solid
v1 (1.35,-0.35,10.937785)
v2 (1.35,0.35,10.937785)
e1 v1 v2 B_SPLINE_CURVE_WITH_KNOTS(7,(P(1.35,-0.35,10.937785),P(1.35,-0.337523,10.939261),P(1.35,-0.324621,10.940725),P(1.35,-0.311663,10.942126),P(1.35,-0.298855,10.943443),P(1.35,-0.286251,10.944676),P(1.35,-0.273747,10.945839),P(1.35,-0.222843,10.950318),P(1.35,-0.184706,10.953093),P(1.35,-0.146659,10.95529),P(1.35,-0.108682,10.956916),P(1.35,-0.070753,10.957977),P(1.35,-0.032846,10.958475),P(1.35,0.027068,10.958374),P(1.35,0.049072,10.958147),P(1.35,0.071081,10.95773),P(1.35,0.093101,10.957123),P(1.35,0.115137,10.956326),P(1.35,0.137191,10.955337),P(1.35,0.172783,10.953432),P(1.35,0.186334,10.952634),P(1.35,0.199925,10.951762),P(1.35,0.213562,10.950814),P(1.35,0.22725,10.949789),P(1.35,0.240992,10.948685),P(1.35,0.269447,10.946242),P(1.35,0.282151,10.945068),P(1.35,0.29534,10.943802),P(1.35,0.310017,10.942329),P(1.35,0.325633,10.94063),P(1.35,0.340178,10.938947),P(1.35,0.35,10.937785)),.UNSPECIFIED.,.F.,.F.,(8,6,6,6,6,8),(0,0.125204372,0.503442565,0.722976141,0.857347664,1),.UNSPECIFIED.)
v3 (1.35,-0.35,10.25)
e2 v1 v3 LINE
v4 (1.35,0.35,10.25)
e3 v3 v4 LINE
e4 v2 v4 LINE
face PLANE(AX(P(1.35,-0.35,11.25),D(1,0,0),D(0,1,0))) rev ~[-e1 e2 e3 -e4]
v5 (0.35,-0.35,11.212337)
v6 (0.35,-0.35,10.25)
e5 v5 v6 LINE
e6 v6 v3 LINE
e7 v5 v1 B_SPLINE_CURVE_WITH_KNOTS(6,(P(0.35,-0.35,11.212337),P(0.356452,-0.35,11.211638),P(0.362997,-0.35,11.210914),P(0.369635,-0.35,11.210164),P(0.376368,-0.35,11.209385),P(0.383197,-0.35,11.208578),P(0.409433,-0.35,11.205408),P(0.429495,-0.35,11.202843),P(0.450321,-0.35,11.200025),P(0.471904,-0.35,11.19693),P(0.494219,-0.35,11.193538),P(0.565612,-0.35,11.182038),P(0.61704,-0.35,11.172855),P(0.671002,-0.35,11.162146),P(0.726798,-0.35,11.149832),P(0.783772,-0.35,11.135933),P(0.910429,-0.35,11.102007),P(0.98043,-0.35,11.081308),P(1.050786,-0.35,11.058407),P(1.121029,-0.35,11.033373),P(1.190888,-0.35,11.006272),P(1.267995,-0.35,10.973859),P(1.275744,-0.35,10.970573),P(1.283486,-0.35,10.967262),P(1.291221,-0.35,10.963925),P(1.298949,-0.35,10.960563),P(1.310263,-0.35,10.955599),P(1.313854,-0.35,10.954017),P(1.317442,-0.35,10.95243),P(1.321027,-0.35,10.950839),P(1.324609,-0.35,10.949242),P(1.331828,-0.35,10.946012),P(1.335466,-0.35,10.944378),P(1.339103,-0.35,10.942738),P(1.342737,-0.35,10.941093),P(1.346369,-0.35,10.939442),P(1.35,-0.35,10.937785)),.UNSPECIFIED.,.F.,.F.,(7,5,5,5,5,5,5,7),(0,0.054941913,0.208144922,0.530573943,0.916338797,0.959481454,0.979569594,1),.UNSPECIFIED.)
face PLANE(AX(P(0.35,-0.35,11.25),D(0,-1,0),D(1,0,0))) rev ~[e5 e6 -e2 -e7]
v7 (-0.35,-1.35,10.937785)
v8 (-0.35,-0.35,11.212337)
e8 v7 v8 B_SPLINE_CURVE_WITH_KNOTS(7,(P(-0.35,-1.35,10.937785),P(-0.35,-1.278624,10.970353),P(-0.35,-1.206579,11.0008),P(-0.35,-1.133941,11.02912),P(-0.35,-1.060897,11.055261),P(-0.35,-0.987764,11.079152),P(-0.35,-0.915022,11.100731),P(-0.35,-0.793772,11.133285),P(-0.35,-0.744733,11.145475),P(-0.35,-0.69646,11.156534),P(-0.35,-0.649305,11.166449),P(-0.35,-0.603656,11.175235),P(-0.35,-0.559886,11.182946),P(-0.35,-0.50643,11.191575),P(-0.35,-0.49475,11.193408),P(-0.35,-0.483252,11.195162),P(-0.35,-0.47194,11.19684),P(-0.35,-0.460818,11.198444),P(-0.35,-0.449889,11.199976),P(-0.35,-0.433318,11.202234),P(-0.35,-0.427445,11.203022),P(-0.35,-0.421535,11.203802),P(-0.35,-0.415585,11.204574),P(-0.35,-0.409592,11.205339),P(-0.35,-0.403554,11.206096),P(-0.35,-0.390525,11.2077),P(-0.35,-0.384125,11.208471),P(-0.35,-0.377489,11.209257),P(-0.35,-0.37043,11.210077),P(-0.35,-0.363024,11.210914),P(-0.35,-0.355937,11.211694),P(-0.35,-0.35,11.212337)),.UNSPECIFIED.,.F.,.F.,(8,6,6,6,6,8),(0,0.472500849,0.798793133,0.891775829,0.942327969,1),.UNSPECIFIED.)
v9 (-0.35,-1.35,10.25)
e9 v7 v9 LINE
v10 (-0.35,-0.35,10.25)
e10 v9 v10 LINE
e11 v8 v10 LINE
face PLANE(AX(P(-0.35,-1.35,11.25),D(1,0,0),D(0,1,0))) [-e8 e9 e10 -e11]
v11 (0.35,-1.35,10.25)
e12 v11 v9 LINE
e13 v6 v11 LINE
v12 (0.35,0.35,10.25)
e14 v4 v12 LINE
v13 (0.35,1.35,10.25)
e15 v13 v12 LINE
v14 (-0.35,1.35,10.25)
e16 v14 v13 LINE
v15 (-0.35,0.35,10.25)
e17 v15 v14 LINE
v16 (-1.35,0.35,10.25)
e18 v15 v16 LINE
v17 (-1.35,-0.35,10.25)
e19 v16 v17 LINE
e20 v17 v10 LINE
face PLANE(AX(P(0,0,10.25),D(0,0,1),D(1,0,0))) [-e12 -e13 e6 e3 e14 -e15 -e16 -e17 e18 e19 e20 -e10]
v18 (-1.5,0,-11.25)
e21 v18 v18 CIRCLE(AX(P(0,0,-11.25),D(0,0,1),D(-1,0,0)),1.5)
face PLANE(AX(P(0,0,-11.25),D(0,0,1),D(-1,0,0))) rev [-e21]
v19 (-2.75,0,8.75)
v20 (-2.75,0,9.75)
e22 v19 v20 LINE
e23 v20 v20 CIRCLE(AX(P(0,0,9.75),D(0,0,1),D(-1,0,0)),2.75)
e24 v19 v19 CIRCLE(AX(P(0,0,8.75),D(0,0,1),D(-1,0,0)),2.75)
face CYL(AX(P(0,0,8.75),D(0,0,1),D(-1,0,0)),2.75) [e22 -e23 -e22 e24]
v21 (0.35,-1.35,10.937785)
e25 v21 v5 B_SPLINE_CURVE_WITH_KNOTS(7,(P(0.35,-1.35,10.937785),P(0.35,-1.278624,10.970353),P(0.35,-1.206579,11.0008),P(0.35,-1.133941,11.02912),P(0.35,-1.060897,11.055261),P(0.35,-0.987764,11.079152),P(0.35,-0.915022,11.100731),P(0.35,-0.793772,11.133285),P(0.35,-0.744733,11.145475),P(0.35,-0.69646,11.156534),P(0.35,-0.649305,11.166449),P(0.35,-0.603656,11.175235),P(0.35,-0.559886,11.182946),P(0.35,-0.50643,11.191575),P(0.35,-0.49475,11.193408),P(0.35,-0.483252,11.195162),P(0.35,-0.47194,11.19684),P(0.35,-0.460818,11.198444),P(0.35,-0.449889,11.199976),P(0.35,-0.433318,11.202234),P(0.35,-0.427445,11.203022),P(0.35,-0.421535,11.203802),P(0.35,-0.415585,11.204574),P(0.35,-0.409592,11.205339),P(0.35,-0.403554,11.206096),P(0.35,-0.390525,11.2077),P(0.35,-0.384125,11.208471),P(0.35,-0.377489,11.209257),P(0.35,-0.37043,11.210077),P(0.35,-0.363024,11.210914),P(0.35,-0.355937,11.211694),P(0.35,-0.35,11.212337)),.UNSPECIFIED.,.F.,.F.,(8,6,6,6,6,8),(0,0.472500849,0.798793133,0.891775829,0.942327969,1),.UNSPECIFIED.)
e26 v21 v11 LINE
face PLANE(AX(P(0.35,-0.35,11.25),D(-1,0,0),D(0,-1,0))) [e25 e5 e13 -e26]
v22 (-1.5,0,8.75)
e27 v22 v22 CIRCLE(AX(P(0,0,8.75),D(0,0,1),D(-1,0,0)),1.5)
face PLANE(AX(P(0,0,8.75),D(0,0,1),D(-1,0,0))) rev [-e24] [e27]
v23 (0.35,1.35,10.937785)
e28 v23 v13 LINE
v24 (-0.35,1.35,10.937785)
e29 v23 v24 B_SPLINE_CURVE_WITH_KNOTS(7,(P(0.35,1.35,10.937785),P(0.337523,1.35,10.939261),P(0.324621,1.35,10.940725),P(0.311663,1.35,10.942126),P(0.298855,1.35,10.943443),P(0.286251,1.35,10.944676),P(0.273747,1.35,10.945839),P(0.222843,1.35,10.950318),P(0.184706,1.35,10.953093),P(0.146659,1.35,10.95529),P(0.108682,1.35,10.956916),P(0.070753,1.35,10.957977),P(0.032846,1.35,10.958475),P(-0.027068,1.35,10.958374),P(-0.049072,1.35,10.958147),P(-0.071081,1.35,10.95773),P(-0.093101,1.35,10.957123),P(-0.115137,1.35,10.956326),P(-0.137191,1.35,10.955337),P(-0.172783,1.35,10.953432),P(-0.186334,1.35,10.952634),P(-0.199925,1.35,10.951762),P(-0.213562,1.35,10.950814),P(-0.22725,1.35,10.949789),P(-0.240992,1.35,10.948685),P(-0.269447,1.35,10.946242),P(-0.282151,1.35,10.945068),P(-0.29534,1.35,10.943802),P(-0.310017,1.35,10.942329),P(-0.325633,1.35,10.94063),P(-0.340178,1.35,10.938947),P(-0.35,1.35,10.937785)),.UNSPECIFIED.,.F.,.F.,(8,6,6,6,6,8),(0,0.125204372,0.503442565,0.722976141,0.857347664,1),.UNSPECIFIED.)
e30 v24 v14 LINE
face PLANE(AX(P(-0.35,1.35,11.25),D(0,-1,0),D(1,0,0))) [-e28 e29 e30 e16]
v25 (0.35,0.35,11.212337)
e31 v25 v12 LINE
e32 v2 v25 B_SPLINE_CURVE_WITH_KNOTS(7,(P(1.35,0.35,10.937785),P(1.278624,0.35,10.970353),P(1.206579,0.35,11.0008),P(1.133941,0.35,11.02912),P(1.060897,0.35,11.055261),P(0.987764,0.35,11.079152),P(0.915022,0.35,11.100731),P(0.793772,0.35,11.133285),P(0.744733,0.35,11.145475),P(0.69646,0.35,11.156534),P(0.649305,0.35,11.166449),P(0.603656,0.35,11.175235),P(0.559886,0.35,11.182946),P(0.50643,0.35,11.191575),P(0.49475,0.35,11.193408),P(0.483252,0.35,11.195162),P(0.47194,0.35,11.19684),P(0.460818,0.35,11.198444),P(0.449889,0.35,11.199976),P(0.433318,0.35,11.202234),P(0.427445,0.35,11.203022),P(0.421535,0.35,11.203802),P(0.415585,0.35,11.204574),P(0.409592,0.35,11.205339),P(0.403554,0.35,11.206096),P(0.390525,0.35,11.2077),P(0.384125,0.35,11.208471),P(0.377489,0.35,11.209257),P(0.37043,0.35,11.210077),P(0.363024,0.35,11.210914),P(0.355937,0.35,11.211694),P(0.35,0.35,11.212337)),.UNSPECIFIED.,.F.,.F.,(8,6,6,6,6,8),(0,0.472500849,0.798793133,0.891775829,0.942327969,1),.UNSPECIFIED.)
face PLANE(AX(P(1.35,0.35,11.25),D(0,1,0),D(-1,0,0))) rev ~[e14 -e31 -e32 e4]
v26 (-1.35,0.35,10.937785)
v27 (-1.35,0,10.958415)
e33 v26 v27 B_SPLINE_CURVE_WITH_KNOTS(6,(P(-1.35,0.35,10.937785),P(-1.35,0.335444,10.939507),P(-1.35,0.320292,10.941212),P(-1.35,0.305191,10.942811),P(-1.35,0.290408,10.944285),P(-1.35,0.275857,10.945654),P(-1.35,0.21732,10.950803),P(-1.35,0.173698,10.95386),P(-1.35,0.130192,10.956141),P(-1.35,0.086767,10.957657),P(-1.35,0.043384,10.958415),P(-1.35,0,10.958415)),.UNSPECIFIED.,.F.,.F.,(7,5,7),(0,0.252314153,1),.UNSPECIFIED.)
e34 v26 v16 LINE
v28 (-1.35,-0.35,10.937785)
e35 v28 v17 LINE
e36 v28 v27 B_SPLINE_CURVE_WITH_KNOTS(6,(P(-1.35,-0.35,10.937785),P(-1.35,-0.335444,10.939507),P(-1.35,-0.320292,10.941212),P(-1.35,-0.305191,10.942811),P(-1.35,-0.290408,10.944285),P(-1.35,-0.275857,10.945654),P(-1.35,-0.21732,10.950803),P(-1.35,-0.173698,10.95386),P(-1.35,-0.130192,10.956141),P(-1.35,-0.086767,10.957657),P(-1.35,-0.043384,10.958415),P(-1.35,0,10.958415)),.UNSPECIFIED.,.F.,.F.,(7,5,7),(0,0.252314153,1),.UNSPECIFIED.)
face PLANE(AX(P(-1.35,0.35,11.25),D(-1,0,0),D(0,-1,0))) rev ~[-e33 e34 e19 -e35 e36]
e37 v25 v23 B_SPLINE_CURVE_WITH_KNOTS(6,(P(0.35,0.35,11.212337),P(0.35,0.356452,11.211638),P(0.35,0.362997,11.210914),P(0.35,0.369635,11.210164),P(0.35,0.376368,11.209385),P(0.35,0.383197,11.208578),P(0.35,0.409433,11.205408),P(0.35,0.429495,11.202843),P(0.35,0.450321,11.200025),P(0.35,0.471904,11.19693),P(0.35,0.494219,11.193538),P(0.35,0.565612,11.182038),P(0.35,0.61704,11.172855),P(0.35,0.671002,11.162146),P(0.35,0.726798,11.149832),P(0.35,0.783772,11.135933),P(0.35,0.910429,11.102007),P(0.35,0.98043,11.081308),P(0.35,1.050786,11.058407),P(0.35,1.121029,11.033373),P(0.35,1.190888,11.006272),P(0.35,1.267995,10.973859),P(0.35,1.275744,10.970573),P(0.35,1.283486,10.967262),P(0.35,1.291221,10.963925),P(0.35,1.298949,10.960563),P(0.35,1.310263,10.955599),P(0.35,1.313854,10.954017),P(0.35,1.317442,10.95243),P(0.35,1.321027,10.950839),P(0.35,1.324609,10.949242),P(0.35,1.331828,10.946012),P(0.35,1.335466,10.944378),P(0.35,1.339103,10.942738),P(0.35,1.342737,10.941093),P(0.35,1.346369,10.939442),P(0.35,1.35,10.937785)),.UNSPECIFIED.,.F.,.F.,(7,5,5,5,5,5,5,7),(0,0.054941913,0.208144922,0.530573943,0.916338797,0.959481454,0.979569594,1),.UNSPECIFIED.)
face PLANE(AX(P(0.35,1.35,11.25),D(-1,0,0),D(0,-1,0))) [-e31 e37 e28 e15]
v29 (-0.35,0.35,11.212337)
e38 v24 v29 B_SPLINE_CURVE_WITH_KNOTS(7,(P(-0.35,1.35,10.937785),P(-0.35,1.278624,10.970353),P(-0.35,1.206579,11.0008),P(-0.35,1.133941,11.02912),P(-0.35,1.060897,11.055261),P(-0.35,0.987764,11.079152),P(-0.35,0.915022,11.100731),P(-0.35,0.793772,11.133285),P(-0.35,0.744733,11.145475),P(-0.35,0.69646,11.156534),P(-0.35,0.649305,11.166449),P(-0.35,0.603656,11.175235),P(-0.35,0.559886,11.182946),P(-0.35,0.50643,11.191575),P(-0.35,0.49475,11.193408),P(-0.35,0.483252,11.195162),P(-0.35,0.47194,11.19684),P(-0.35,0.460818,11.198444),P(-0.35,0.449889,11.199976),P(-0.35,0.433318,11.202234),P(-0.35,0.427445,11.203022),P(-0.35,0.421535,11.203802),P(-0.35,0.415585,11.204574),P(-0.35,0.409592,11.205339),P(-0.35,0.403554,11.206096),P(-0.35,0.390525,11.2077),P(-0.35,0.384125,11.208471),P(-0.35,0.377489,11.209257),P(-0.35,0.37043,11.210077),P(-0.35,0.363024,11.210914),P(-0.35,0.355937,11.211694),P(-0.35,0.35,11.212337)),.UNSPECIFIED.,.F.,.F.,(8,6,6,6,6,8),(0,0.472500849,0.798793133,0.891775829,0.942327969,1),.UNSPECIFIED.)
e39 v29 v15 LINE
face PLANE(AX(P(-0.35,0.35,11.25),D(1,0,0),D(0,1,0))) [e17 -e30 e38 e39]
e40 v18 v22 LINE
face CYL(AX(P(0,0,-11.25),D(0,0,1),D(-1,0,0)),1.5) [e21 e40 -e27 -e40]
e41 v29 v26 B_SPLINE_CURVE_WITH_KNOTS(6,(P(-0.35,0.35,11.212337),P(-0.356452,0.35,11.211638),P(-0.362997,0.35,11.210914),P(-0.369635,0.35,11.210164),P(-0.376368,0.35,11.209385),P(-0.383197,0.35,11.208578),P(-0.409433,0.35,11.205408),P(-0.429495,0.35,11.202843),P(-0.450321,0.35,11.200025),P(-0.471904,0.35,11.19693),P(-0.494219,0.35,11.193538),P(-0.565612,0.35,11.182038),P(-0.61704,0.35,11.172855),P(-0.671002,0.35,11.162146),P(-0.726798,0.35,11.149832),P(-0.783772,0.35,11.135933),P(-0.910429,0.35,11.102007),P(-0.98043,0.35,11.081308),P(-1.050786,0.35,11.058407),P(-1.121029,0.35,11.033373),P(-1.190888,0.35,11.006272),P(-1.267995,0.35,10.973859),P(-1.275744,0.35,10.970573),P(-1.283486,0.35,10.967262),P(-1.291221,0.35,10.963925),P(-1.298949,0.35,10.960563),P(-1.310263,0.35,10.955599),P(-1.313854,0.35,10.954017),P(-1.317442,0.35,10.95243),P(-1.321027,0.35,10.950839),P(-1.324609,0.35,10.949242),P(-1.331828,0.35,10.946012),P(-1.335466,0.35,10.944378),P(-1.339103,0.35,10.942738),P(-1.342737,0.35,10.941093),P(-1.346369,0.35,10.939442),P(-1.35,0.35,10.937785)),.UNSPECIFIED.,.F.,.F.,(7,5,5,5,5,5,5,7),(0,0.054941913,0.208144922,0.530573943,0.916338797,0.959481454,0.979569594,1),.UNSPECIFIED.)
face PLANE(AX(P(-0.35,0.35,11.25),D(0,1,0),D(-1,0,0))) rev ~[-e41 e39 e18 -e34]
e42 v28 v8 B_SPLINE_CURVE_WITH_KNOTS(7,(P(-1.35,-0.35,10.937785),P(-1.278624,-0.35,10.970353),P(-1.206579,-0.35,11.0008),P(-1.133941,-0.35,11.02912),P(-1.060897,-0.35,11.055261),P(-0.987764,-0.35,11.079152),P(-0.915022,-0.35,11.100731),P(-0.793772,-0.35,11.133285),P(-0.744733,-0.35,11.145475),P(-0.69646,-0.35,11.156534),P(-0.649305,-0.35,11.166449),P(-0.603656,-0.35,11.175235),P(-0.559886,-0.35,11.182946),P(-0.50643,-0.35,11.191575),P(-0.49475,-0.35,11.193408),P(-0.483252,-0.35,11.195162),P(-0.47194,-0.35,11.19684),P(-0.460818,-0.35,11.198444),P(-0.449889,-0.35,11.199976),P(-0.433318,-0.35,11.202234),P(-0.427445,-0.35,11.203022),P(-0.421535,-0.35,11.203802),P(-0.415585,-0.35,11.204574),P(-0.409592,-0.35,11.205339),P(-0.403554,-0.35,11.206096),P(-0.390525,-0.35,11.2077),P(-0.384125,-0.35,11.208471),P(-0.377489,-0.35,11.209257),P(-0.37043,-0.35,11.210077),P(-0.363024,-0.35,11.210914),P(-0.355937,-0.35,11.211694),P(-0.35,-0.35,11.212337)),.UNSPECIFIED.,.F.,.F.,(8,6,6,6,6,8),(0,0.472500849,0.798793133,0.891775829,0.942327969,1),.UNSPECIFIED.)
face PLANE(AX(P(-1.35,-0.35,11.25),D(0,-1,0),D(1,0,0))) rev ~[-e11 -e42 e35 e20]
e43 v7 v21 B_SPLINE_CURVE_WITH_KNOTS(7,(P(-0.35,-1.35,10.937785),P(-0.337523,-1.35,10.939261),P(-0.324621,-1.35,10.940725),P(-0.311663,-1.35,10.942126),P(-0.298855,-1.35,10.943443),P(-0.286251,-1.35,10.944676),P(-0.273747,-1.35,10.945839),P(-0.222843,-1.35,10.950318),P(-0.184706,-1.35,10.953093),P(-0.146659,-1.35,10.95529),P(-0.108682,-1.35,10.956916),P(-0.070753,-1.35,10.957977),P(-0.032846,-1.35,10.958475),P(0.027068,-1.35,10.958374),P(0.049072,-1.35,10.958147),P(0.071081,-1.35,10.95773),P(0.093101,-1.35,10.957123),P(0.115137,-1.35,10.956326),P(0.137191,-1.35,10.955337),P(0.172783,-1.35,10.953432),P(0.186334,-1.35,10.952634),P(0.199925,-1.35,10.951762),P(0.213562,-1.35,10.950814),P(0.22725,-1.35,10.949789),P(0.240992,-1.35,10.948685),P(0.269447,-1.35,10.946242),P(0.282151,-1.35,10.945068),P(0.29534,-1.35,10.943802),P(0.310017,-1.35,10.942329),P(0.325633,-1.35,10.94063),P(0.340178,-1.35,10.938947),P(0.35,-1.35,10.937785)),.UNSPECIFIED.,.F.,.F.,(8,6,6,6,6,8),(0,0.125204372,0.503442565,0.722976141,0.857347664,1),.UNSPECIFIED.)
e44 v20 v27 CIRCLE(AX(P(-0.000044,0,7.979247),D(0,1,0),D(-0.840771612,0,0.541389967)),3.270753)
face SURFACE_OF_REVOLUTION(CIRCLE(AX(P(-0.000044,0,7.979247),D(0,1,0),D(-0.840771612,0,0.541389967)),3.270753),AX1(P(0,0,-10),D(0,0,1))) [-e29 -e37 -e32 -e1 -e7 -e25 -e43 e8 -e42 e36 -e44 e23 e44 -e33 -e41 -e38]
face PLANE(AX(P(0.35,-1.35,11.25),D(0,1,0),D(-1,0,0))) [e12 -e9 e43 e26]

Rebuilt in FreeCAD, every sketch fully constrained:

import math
import FreeCAD as App
import Part
import Sketcher

doc = App.newDocument("Part")
body = doc.addObject("PartDesign::Body", "Body")

# Sketch on XZ plane
sketch1 = body.newObject("Sketcher::SketchObject", "Sketch")
sketch1.AttachmentSupport = (doc.getObject("XZ_Plane"), [""])
sketch1.MapMode = "FlatFace"
sketch1.addGeometry(Part.LineSegment(App.Vector(0, -11.2, 0), App.Vector(-1.5, -11.2, 0)), False)
sketch1.addGeometry(Part.LineSegment(App.Vector(-1.5, -11.2, 0), App.Vector(-1.5, 8.8, 0)), False)
sketch1.addGeometry(Part.LineSegment(App.Vector(-1.5, 8.8, 0), App.Vector(-2.8, 8.8, 0)), False)
sketch1.addGeometry(Part.LineSegment(App.Vector(-2.8, 8.8, 0), App.Vector(-2.8, 9.8, 0)), False)
sketch1.addGeometry(Part.ArcOfCircle(Part.Circle(App.Vector(0, 8, 0), App.Vector(0, 0, 1), 3.3), math.radians(90), math.radians(147)), False)
sketch1.addGeometry(Part.LineSegment(App.Vector(0, 11.2, 0), App.Vector(0, -11.2, 0)), False)
sketch1.addConstraint(Sketcher.Constraint("Coincident", 0, 2, 1, 1))
sketch1.addConstraint(Sketcher.Constraint("Coincident", 1, 2, 2, 1))
sketch1.addConstraint(Sketcher.Constraint("Coincident", 2, 2, 3, 1))
sketch1.addConstraint(Sketcher.Constraint("Coincident", 3, 2, 4, 2))
sketch1.addConstraint(Sketcher.Constraint("Coincident", 4, 1, 5, 1))
sketch1.addConstraint(Sketcher.Constraint("Coincident", 5, 2, 0, 1))
sketch1.addConstraint(Sketcher.Constraint("Horizontal", 0))
sketch1.addConstraint(Sketcher.Constraint("Vertical", 1))
sketch1.addConstraint(Sketcher.Constraint("Horizontal", 2))
sketch1.addConstraint(Sketcher.Constraint("Vertical", 3))
sketch1.addConstraint(Sketcher.Constraint("Vertical", 5))
sketch1.addConstraint(Sketcher.Constraint("Symmetric", 4, 1, 5, 2, -1, 1))
sketch1.addConstraint(Sketcher.Constraint("PointOnObject", 4, 3, -2))
sketch1.addConstraint(Sketcher.Constraint("DistanceY", 1, 1, 1, 2, 20.0))
sketch1.addConstraint(Sketcher.Constraint("DistanceY", 3, 1, 3, 2, 1.0))
sketch1.addConstraint(Sketcher.Constraint("DistanceY", 1, 2, 4, 1, 2.5))
sketch1.addConstraint(Sketcher.Constraint("DistanceX", 0, 2, 0, 1, 1.5))
sketch1.addConstraint(Sketcher.Constraint("DistanceX", 2, 2, 2, 1, 1.25))
revolution = body.newObject("PartDesign::Revolution", "Revolution")
revolution.Profile = sketch1
revolution.ReferenceAxis = (sketch1, ["V_Axis"])
revolution.Angle = 360

# Sketch on XY plane
sketch2 = body.newObject("Sketcher::SketchObject", "Sketch001")
sketch2.AttachmentSupport = (doc.getObject("XY_Plane"), [""])
sketch2.MapMode = "FlatFace"
sketch2.AttachmentOffset = App.Placement(App.Vector(0, 0, 11.25), App.Rotation())
sketch2.addGeometry(Part.LineSegment(App.Vector(-1.4, 0.3, 0), App.Vector(-1.4, -0.3, 0)), False)
sketch2.addGeometry(Part.LineSegment(App.Vector(-1.4, -0.3, 0), App.Vector(-0.3, -0.3, 0)), False)
sketch2.addGeometry(Part.LineSegment(App.Vector(-0.3, -0.3, 0), App.Vector(-0.3, -1.4, 0)), False)
sketch2.addGeometry(Part.LineSegment(App.Vector(-0.3, -1.4, 0), App.Vector(0.3, -1.4, 0)), False)
sketch2.addGeometry(Part.LineSegment(App.Vector(0.3, -1.4, 0), App.Vector(0.3, -0.3, 0)), False)
sketch2.addGeometry(Part.LineSegment(App.Vector(0.3, -0.3, 0), App.Vector(1.4, -0.3, 0)), False)
sketch2.addGeometry(Part.LineSegment(App.Vector(1.4, -0.3, 0), App.Vector(1.4, 0.3, 0)), False)
sketch2.addGeometry(Part.LineSegment(App.Vector(1.4, 0.3, 0), App.Vector(0.3, 0.3, 0)), False)
sketch2.addGeometry(Part.LineSegment(App.Vector(0.3, 0.3, 0), App.Vector(0.3, 1.4, 0)), False)
sketch2.addGeometry(Part.LineSegment(App.Vector(0.3, 1.4, 0), App.Vector(-0.3, 1.4, 0)), False)
sketch2.addGeometry(Part.LineSegment(App.Vector(-0.3, 1.4, 0), App.Vector(-0.3, 0.3, 0)), False)
sketch2.addGeometry(Part.LineSegment(App.Vector(-0.3, 0.3, 0), App.Vector(-1.4, 0.3, 0)), False)
sketch2.addConstraint(Sketcher.Constraint("Coincident", 0, 2, 1, 1))
sketch2.addConstraint(Sketcher.Constraint("Coincident", 1, 2, 2, 1))
sketch2.addConstraint(Sketcher.Constraint("Coincident", 2, 2, 3, 1))
sketch2.addConstraint(Sketcher.Constraint("Coincident", 3, 2, 4, 1))
sketch2.addConstraint(Sketcher.Constraint("Coincident", 4, 2, 5, 1))
sketch2.addConstraint(Sketcher.Constraint("Coincident", 5, 2, 6, 1))
sketch2.addConstraint(Sketcher.Constraint("Coincident", 6, 2, 7, 1))
sketch2.addConstraint(Sketcher.Constraint("Coincident", 7, 2, 8, 1))
sketch2.addConstraint(Sketcher.Constraint("Coincident", 8, 2, 9, 1))
sketch2.addConstraint(Sketcher.Constraint("Coincident", 9, 2, 10, 1))
sketch2.addConstraint(Sketcher.Constraint("Coincident", 10, 2, 11, 1))
sketch2.addConstraint(Sketcher.Constraint("Coincident", 11, 2, 0, 1))
sketch2.addConstraint(Sketcher.Constraint("Vertical", 0))
sketch2.addConstraint(Sketcher.Constraint("Horizontal", 1))
sketch2.addConstraint(Sketcher.Constraint("Vertical", 2))
sketch2.addConstraint(Sketcher.Constraint("Horizontal", 3))
sketch2.addConstraint(Sketcher.Constraint("Vertical", 4))
sketch2.addConstraint(Sketcher.Constraint("Horizontal", 5))
sketch2.addConstraint(Sketcher.Constraint("Vertical", 6))
sketch2.addConstraint(Sketcher.Constraint("Horizontal", 7))
sketch2.addConstraint(Sketcher.Constraint("Vertical", 8))
sketch2.addConstraint(Sketcher.Constraint("Horizontal", 9))
sketch2.addConstraint(Sketcher.Constraint("Vertical", 10))
sketch2.addConstraint(Sketcher.Constraint("Horizontal", 11))
sketch2.addConstraint(Sketcher.Constraint("Symmetric", 0, 2, 6, 2, -1, 1))
sketch2.addConstraint(Sketcher.Constraint("Symmetric", 2, 2, 8, 2, -1, 1))
sketch2.addConstraint(Sketcher.Constraint("Symmetric", 4, 2, 10, 2, -1, 1))
sketch2.addConstraint(Sketcher.Constraint("Symmetric", 1, 2, 4, 2, -2))
sketch2.addConstraint(Sketcher.Constraint("Equal", 9, 0))
sketch2.addConstraint(Sketcher.Constraint("Equal", 11, 2))
sketch2.addConstraint(Sketcher.Constraint("DistanceX", 3, 1, 3, 2, 0.7))
sketch2.addConstraint(Sketcher.Constraint("DistanceX", 0, 2, 5, 2, 2.7))
pocket1 = body.newObject("PartDesign::Pocket", "Pocket")
pocket1.Profile = sketch2
pocket1.Length = 1

doc.recompute()
